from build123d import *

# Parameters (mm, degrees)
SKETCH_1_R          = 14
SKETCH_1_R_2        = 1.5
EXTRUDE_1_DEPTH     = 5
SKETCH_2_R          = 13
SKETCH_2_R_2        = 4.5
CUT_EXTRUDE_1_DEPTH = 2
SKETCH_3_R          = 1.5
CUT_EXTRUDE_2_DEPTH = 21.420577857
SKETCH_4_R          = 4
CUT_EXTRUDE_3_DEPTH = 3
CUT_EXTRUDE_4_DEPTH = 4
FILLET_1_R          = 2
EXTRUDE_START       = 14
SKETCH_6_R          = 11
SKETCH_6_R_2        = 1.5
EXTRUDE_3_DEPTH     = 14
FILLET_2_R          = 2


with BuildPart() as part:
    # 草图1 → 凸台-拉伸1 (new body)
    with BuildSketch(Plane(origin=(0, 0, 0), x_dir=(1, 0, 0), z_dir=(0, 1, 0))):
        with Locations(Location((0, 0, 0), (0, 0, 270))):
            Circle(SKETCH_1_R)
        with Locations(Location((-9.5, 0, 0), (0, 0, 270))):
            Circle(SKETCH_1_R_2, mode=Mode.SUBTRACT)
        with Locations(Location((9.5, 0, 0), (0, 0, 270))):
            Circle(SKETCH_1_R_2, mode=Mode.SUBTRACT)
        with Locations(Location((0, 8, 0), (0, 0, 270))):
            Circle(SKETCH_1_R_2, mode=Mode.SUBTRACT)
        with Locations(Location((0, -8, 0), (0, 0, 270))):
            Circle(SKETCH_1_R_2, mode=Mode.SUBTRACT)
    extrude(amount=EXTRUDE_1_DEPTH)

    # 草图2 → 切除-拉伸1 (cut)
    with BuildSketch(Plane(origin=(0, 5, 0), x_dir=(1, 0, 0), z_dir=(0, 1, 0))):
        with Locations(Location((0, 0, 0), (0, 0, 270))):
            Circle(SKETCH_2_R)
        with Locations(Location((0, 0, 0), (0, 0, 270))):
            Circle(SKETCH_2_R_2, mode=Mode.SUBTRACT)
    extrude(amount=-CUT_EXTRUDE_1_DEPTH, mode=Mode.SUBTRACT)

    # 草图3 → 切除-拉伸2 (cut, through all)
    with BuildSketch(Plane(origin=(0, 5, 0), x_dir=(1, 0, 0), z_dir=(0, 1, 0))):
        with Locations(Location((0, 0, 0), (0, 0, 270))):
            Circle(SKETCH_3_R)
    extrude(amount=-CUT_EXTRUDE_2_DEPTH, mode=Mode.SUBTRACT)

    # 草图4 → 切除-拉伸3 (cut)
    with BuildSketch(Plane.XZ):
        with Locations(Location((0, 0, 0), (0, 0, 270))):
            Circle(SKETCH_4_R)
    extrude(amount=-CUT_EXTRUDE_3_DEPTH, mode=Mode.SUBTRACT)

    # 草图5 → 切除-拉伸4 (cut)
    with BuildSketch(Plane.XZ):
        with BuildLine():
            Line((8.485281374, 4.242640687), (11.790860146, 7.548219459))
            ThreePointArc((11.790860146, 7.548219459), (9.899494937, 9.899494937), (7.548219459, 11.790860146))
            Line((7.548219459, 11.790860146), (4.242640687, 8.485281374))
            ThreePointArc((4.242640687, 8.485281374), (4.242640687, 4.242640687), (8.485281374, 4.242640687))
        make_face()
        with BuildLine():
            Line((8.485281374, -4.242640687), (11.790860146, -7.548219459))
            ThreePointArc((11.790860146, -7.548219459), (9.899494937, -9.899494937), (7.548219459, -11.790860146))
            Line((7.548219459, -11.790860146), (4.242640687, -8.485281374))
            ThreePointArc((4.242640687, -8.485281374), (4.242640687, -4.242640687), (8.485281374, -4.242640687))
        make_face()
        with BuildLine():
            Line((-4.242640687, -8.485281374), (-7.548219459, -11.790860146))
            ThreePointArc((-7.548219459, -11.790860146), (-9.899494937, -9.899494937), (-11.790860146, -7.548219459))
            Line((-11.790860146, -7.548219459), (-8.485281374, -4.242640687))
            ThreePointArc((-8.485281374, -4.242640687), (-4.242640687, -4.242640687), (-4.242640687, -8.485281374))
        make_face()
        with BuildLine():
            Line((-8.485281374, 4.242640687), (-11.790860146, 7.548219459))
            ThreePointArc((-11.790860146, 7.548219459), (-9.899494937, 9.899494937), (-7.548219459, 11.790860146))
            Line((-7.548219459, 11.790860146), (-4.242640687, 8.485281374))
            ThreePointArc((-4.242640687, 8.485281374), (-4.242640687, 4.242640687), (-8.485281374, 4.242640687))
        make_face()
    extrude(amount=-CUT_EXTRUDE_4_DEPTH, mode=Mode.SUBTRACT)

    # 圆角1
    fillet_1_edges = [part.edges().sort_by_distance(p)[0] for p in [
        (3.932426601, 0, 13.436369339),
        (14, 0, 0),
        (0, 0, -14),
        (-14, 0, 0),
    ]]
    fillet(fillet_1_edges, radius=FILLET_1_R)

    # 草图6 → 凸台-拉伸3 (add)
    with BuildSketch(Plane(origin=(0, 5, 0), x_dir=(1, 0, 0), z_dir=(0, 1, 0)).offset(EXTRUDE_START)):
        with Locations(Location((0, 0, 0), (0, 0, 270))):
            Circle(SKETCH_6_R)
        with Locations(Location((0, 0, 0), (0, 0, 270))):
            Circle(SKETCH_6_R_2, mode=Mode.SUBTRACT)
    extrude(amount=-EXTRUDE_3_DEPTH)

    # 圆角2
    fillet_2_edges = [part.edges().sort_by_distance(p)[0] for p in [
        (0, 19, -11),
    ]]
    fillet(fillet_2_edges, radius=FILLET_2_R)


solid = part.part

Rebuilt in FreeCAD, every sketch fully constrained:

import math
import FreeCAD as App
import Part
import Sketcher
from FreeCAD import Vector
Q = App.Units.Quantity


def edges_at(feature, points):
    """Names of the edges that pass closest to the given points."""
    edges = feature.Shape.Edges
    near = lambda p: min(range(len(edges)), key=lambda i: edges[i].distToShape(Part.Vertex(*p))[0])
    return sorted({f"Edge{near(p) + 1}" for p in points})

doc = App.newDocument("Part")
body = doc.addObject("PartDesign::Body", "Body")

sketch1 = body.newObject("Sketcher::SketchObject", "Sketch")
sketch1.AttachmentSupport = (doc.getObject("XZ_Plane"), [""])
sketch1.MapMode = "FlatFace"
sketch1.addGeometry(Part.Circle(Vector(0, 0, 0), Vector(0, 0, 1), 14), False)
sketch1.addGeometry(Part.Circle(Vector(-9.5, 0, 0), Vector(0, 0, 1), 1.5), False)
sketch1.addGeometry(Part.Circle(Vector(0, -8, 0), Vector(0, 0, 1), 1.5), False)
sketch1.addGeometry(Part.Circle(Vector(9.5, 0, 0), Vector(0, 0, 1), 1.5), False)
sketch1.addGeometry(Part.Circle(Vector(0, 8, 0), Vector(0, 0, 1), 1.5), False)
sketch1.addConstraint(Sketcher.Constraint("Coincident", 0, 3, -1, 1))
sketch1.addConstraint(Sketcher.Constraint("Equal", 1, 2))
sketch1.addConstraint(Sketcher.Constraint("Equal", 2, 3))
sketch1.addConstraint(Sketcher.Constraint("Equal", 3, 4))
sketch1.addConstraint(Sketcher.Constraint("Symmetric", 1, 3, 3, 3, -1, 1))
sketch1.addConstraint(Sketcher.Constraint("Symmetric", 2, 3, 4, 3, -1, 1))
sketch1.addConstraint(Sketcher.Constraint("PointOnObject", 1, 3, -1))
sketch1.addConstraint(Sketcher.Constraint("PointOnObject", 2, 3, -2))
sketch1.addConstraint(Sketcher.Constraint("Diameter", 0, Q("28 mm")))
sketch1.addConstraint(Sketcher.Constraint("Diameter", 1, Q("3 mm")))
sketch1.addConstraint(Sketcher.Constraint("DistanceY", 2, 3, -1, 1, Q("8 mm")))
sketch1.addConstraint(Sketcher.Constraint("DistanceX", 1, 3, 3, 3, Q("19 mm")))
pad1 = body.newObject("PartDesign::Pad", "Pad")
pad1.Profile = sketch1
pad1.Length = 5
pad1.Reversed = True

sketch2 = body.newObject("Sketcher::SketchObject", "Sketch001")
sketch2.AttachmentSupport = (doc.getObject("XZ_Plane"), [""])
sketch2.MapMode = "FlatFace"
sketch2.AttachmentOffset = App.Placement(Vector(0, 0, -5), App.Rotation())
sketch2.addGeometry(Part.Circle(Vector(0, 0, 0), Vector(0, 0, 1), 13), False)
sketch2.addGeometry(Part.Circle(Vector(0, 0, 0), Vector(0, 0, 1), 4.5), False)
sketch2.addConstraint(Sketcher.Constraint("Coincident", 0, 3, -1, 1))
sketch2.addConstraint(Sketcher.Constraint("Coincident", 1, 3, -1, 1))
sketch2.addConstraint(Sketcher.Constraint("Diameter", 0, Q("26 mm")))
sketch2.addConstraint(Sketcher.Constraint("Diameter", 1, Q("9 mm")))
pocket1 = body.newObject("PartDesign::Pocket", "Pocket")
pocket1.Profile = sketch2
pocket1.Length = 2
pocket1.Reversed = True

sketch3 = body.newObject("Sketcher::SketchObject", "Sketch002")
sketch3.AttachmentSupport = (doc.getObject("XZ_Plane"), [""])
sketch3.MapMode = "FlatFace"
sketch3.AttachmentOffset = App.Placement(Vector(0, 0, -5), App.Rotation())
sketch3.addGeometry(Part.Circle(Vector(0, 0, 0), Vector(0, 0, 1), 1.5), False)
sketch3.addConstraint(Sketcher.Constraint("Coincident", 0, 3, -1, 1))
sketch3.addConstraint(Sketcher.Constraint("Diameter", 0, Q("3 mm")))
pocket2 = body.newObject("PartDesign::Pocket", "Pocket001")
pocket2.Profile = sketch3
pocket2.Type = "ThroughAll"
pocket2.Reversed = True

sketch4 = body.newObject("Sketcher::SketchObject", "Sketch003")
sketch4.AttachmentSupport = (doc.getObject("XZ_Plane"), [""])
sketch4.MapMode = "FlatFace"
sketch4.addGeometry(Part.Circle(Vector(0, 0, 0), Vector(0, 0, 1), 4), False)
sketch4.addConstraint(Sketcher.Constraint("Coincident", 0, 3, -1, 1))
sketch4.addConstraint(Sketcher.Constraint("Diameter", 0, Q("8 mm")))
pocket3 = body.newObject("PartDesign::Pocket", "Pocket002")
pocket3.Profile = sketch4
pocket3.Length = 3

sketch5 = body.newObject("Sketcher::SketchObject", "Sketch004")
sketch5.AttachmentSupport = (doc.getObject("XZ_Plane"), [""])
sketch5.MapMode = "FlatFace"
sketch5.addGeometry(Part.LineSegment(Vector(8.5, 4.2, 0), Vector(11.8, 7.5, 0)), False)
sketch5.addGeometry(Part.ArcOfCircle(Part.Circle(Vector(0, 0, 0), Vector(0, 0, 1), 14), math.radians(33), math.radians(57)), False)
sketch5.addGeometry(Part.LineSegment(Vector(7.5, 11.8, 0), Vector(4.2, 8.5, 0)), False)
sketch5.addGeometry(Part.ArcOfCircle(Part.Circle(Vector(6.4, 6.4, 0), Vector(0, 0, 1), 3), math.radians(135), math.radians(315)), False)
sketch5.addGeometry(Part.LineSegment(Vector(11.8, -7.5, 0), Vector(8.5, -4.2, 0)), False)
sketch5.addGeometry(Part.ArcOfCircle(Part.Circle(Vector(6.4, -6.4, 0), Vector(0, 0, 1), 3), math.radians(45), math.radians(225)), False)
sketch5.addGeometry(Part.LineSegment(Vector(4.2, -8.5, 0), Vector(7.5, -11.8, 0)), False)
sketch5.addGeometry(Part.ArcOfCircle(Part.Circle(Vector(0, 0, 0), Vector(0, 0, 1), 14), math.radians(-57), math.radians(-33)), False)
sketch5.addGeometry(Part.LineSegment(Vector(-7.5, -11.8, 0), Vector(-4.2, -8.5, 0)), False)
sketch5.addGeometry(Part.ArcOfCircle(Part.Circle(Vector(-6.4, -6.4, 0), Vector(0, 0, 1), 3), math.radians(-45), math.radians(135)), False)
sketch5.addGeometry(Part.LineSegment(Vector(-8.5, -4.2, 0), Vector(-11.8, -7.5, 0)), False)
sketch5.addGeometry(Part.ArcOfCircle(Part.Circle(Vector(0, 0, 0), Vector(0, 0, 1), 14), math.radians(-147), math.radians(-123)), False)
sketch5.addGeometry(Part.LineSegment(Vector(-11.8, 7.5, 0), Vector(-8.5, 4.2, 0)), False)
sketch5.addGeometry(Part.ArcOfCircle(Part.Circle(Vector(-6.4, 6.4, 0), Vector(0, 0, 1), 3), math.radians(-135), math.radians(45)), False)
sketch5.addGeometry(Part.LineSegment(Vector(-4.2, 8.5, 0), Vector(-7.5, 11.8, 0)), False)
sketch5.addGeometry(Part.ArcOfCircle(Part.Circle(Vector(0, 0, 0), Vector(0, 0, 1), 14), math.radians(123), math.radians(147)), False)
sketch5.addConstraint(Sketcher.Constraint("Coincident", 0, 2, 1, 1))
sketch5.addConstraint(Sketcher.Constraint("Coincident", 1, 2, 2, 1))
sketch5.addConstraint(Sketcher.Constraint("Tangent", 2, 2, 3, 1))
sketch5.addConstraint(Sketcher.Constraint("Tangent", 3, 2, 0, 1))
sketch5.addConstraint(Sketcher.Constraint("Tangent", 4, 2, 5, 1))
sketch5.addConstraint(Sketcher.Constraint("Tangent", 5, 2, 6, 1))
sketch5.addConstraint(Sketcher.Constraint("Coincident", 6, 2, 7, 1))
sketch5.addConstraint(Sketcher.Constraint("Coincident", 7, 2, 4, 1))
sketch5.addConstraint(Sketcher.Constraint("Tangent", 8, 2, 9, 1))
sketch5.addConstraint(Sketcher.Constraint("Tangent", 9, 2, 10, 1))
sketch5.addConstraint(Sketcher.Constraint("Coincident", 10, 2, 11, 1))
sketch5.addConstraint(Sketcher.Constraint("Coincident", 11, 2, 8, 1))
sketch5.addConstraint(Sketcher.Constraint("Tangent", 12, 2, 13, 1))
sketch5.addConstraint(Sketcher.Constraint("Tangent", 13, 2, 14, 1))
sketch5.addConstraint(Sketcher.Constraint("Coincident", 14, 2, 15, 1))
sketch5.addConstraint(Sketcher.Constraint("Coincident", 15, 2, 12, 1))
sketch5.addConstraint(Sketcher.Constraint("Coincident", 1, 3, -1, 1))
sketch5.addConstraint(Sketcher.Constraint("Coincident", 7, 3, -1, 1))
sketch5.addConstraint(Sketcher.Constraint("Coincident", 11, 3, -1, 1))
sketch5.addConstraint(Sketcher.Constraint("Coincident", 15, 3, -1, 1))
sketch5.addConstraint(Sketcher.Constraint("Equal", 3, 5))
sketch5.addConstraint(Sketcher.Constraint("Equal", 1, 7))
sketch5.addConstraint(Sketcher.Constraint("Equal", 5, 9))
sketch5.addConstraint(Sketcher.Constraint("Equal", 7, 11))
sketch5.addConstraint(Sketcher.Constraint("Equal", 9, 13))
sketch5.addConstraint(Sketcher.Constraint("Equal", 11, 15))
sketch5.addConstraint(Sketcher.Constraint("Symmetric", 3, 3, 9, 3, -1, 1))
sketch5.addConstraint(Sketcher.Constraint("Symmetric", 5, 3, 13, 3, -1, 1))
sketch5.addConstraint(Sketcher.Constraint("Symmetric", 5, 3, 9, 3, -2))
sketch5.addConstraint(Sketcher.Constraint("Parallel", 0, 2))
sketch5.addConstraint(Sketcher.Constraint("Perpendicular", 2, 4))
sketch5.addConstraint(Sketcher.Constraint("Parallel", 4, 6))
sketch5.addConstraint(Sketcher.Constraint("Perpendicular", 6, 8))
sketch5.addConstraint(Sketcher.Constraint("Parallel", 8, 10))
sketch5.addConstraint(Sketcher.Constraint("Perpendicular", 10, 12))
sketch5.addConstraint(Sketcher.Constraint("Parallel", 12, 14))
sketch5.addConstraint(Sketcher.Constraint("Horizontal", 5, 2, 8, 2))
sketch5.addConstraint(Sketcher.Constraint("Equal", 0, 2))
sketch5.addConstraint(Sketcher.Constraint("Radius", 1, Q("14 mm")))
sketch5.addConstraint(Sketcher.Constraint("Radius", 3, Q("3 mm")))
sketch5.addConstraint(Sketcher.Constraint("DistanceX", 3, 3, 0, 2, Q("5.426899 mm")))
pocket4 = body.newObject("PartDesign::Pocket", "Pocket003")
pocket4.Profile = sketch5
pocket4.Length = 4
doc.recompute()

fillet = body.newObject("PartDesign::Fillet", "Fillet")
fillet.Base = (pocket4, edges_at(pocket4, [
    (3.932, 0, 13.436),
    (14, 0, 0),
    (0, 0, -14),
    (-14, 0, 0),
]))
fillet.Radius = 2

sketch6 = body.newObject("Sketcher::SketchObject", "Sketch005")
sketch6.AttachmentSupport = (doc.getObject("XZ_Plane"), [""])
sketch6.MapMode = "FlatFace"
sketch6.AttachmentOffset = App.Placement(Vector(0, 0, -19), App.Rotation())
sketch6.addGeometry(Part.Circle(Vector(0, 0, 0), Vector(0, 0, 1), 11), False)
sketch6.addGeometry(Part.Circle(Vector(0, 0, 0), Vector(0, 0, 1), 1.5), False)
sketch6.addConstraint(Sketcher.Constraint("Coincident", 0, 3, -1, 1))
sketch6.addConstraint(Sketcher.Constraint("Coincident", 1, 3, -1, 1))
sketch6.addConstraint(Sketcher.Constraint("Diameter", 0, Q("22 mm")))
sketch6.addConstraint(Sketcher.Constraint("Diameter", 1, Q("3 mm")))
pad2 = body.newObject("PartDesign::Pad", "Pad001")
pad2.Profile = sketch6
pad2.Length = 14
doc.recompute()

fillet2 = body.newObject("PartDesign::Fillet", "Fillet001")
fillet2.Base = (pad2, edges_at(pad2, [(0, 19, -11)]))
fillet2.Radius = 2

doc.recompute()
